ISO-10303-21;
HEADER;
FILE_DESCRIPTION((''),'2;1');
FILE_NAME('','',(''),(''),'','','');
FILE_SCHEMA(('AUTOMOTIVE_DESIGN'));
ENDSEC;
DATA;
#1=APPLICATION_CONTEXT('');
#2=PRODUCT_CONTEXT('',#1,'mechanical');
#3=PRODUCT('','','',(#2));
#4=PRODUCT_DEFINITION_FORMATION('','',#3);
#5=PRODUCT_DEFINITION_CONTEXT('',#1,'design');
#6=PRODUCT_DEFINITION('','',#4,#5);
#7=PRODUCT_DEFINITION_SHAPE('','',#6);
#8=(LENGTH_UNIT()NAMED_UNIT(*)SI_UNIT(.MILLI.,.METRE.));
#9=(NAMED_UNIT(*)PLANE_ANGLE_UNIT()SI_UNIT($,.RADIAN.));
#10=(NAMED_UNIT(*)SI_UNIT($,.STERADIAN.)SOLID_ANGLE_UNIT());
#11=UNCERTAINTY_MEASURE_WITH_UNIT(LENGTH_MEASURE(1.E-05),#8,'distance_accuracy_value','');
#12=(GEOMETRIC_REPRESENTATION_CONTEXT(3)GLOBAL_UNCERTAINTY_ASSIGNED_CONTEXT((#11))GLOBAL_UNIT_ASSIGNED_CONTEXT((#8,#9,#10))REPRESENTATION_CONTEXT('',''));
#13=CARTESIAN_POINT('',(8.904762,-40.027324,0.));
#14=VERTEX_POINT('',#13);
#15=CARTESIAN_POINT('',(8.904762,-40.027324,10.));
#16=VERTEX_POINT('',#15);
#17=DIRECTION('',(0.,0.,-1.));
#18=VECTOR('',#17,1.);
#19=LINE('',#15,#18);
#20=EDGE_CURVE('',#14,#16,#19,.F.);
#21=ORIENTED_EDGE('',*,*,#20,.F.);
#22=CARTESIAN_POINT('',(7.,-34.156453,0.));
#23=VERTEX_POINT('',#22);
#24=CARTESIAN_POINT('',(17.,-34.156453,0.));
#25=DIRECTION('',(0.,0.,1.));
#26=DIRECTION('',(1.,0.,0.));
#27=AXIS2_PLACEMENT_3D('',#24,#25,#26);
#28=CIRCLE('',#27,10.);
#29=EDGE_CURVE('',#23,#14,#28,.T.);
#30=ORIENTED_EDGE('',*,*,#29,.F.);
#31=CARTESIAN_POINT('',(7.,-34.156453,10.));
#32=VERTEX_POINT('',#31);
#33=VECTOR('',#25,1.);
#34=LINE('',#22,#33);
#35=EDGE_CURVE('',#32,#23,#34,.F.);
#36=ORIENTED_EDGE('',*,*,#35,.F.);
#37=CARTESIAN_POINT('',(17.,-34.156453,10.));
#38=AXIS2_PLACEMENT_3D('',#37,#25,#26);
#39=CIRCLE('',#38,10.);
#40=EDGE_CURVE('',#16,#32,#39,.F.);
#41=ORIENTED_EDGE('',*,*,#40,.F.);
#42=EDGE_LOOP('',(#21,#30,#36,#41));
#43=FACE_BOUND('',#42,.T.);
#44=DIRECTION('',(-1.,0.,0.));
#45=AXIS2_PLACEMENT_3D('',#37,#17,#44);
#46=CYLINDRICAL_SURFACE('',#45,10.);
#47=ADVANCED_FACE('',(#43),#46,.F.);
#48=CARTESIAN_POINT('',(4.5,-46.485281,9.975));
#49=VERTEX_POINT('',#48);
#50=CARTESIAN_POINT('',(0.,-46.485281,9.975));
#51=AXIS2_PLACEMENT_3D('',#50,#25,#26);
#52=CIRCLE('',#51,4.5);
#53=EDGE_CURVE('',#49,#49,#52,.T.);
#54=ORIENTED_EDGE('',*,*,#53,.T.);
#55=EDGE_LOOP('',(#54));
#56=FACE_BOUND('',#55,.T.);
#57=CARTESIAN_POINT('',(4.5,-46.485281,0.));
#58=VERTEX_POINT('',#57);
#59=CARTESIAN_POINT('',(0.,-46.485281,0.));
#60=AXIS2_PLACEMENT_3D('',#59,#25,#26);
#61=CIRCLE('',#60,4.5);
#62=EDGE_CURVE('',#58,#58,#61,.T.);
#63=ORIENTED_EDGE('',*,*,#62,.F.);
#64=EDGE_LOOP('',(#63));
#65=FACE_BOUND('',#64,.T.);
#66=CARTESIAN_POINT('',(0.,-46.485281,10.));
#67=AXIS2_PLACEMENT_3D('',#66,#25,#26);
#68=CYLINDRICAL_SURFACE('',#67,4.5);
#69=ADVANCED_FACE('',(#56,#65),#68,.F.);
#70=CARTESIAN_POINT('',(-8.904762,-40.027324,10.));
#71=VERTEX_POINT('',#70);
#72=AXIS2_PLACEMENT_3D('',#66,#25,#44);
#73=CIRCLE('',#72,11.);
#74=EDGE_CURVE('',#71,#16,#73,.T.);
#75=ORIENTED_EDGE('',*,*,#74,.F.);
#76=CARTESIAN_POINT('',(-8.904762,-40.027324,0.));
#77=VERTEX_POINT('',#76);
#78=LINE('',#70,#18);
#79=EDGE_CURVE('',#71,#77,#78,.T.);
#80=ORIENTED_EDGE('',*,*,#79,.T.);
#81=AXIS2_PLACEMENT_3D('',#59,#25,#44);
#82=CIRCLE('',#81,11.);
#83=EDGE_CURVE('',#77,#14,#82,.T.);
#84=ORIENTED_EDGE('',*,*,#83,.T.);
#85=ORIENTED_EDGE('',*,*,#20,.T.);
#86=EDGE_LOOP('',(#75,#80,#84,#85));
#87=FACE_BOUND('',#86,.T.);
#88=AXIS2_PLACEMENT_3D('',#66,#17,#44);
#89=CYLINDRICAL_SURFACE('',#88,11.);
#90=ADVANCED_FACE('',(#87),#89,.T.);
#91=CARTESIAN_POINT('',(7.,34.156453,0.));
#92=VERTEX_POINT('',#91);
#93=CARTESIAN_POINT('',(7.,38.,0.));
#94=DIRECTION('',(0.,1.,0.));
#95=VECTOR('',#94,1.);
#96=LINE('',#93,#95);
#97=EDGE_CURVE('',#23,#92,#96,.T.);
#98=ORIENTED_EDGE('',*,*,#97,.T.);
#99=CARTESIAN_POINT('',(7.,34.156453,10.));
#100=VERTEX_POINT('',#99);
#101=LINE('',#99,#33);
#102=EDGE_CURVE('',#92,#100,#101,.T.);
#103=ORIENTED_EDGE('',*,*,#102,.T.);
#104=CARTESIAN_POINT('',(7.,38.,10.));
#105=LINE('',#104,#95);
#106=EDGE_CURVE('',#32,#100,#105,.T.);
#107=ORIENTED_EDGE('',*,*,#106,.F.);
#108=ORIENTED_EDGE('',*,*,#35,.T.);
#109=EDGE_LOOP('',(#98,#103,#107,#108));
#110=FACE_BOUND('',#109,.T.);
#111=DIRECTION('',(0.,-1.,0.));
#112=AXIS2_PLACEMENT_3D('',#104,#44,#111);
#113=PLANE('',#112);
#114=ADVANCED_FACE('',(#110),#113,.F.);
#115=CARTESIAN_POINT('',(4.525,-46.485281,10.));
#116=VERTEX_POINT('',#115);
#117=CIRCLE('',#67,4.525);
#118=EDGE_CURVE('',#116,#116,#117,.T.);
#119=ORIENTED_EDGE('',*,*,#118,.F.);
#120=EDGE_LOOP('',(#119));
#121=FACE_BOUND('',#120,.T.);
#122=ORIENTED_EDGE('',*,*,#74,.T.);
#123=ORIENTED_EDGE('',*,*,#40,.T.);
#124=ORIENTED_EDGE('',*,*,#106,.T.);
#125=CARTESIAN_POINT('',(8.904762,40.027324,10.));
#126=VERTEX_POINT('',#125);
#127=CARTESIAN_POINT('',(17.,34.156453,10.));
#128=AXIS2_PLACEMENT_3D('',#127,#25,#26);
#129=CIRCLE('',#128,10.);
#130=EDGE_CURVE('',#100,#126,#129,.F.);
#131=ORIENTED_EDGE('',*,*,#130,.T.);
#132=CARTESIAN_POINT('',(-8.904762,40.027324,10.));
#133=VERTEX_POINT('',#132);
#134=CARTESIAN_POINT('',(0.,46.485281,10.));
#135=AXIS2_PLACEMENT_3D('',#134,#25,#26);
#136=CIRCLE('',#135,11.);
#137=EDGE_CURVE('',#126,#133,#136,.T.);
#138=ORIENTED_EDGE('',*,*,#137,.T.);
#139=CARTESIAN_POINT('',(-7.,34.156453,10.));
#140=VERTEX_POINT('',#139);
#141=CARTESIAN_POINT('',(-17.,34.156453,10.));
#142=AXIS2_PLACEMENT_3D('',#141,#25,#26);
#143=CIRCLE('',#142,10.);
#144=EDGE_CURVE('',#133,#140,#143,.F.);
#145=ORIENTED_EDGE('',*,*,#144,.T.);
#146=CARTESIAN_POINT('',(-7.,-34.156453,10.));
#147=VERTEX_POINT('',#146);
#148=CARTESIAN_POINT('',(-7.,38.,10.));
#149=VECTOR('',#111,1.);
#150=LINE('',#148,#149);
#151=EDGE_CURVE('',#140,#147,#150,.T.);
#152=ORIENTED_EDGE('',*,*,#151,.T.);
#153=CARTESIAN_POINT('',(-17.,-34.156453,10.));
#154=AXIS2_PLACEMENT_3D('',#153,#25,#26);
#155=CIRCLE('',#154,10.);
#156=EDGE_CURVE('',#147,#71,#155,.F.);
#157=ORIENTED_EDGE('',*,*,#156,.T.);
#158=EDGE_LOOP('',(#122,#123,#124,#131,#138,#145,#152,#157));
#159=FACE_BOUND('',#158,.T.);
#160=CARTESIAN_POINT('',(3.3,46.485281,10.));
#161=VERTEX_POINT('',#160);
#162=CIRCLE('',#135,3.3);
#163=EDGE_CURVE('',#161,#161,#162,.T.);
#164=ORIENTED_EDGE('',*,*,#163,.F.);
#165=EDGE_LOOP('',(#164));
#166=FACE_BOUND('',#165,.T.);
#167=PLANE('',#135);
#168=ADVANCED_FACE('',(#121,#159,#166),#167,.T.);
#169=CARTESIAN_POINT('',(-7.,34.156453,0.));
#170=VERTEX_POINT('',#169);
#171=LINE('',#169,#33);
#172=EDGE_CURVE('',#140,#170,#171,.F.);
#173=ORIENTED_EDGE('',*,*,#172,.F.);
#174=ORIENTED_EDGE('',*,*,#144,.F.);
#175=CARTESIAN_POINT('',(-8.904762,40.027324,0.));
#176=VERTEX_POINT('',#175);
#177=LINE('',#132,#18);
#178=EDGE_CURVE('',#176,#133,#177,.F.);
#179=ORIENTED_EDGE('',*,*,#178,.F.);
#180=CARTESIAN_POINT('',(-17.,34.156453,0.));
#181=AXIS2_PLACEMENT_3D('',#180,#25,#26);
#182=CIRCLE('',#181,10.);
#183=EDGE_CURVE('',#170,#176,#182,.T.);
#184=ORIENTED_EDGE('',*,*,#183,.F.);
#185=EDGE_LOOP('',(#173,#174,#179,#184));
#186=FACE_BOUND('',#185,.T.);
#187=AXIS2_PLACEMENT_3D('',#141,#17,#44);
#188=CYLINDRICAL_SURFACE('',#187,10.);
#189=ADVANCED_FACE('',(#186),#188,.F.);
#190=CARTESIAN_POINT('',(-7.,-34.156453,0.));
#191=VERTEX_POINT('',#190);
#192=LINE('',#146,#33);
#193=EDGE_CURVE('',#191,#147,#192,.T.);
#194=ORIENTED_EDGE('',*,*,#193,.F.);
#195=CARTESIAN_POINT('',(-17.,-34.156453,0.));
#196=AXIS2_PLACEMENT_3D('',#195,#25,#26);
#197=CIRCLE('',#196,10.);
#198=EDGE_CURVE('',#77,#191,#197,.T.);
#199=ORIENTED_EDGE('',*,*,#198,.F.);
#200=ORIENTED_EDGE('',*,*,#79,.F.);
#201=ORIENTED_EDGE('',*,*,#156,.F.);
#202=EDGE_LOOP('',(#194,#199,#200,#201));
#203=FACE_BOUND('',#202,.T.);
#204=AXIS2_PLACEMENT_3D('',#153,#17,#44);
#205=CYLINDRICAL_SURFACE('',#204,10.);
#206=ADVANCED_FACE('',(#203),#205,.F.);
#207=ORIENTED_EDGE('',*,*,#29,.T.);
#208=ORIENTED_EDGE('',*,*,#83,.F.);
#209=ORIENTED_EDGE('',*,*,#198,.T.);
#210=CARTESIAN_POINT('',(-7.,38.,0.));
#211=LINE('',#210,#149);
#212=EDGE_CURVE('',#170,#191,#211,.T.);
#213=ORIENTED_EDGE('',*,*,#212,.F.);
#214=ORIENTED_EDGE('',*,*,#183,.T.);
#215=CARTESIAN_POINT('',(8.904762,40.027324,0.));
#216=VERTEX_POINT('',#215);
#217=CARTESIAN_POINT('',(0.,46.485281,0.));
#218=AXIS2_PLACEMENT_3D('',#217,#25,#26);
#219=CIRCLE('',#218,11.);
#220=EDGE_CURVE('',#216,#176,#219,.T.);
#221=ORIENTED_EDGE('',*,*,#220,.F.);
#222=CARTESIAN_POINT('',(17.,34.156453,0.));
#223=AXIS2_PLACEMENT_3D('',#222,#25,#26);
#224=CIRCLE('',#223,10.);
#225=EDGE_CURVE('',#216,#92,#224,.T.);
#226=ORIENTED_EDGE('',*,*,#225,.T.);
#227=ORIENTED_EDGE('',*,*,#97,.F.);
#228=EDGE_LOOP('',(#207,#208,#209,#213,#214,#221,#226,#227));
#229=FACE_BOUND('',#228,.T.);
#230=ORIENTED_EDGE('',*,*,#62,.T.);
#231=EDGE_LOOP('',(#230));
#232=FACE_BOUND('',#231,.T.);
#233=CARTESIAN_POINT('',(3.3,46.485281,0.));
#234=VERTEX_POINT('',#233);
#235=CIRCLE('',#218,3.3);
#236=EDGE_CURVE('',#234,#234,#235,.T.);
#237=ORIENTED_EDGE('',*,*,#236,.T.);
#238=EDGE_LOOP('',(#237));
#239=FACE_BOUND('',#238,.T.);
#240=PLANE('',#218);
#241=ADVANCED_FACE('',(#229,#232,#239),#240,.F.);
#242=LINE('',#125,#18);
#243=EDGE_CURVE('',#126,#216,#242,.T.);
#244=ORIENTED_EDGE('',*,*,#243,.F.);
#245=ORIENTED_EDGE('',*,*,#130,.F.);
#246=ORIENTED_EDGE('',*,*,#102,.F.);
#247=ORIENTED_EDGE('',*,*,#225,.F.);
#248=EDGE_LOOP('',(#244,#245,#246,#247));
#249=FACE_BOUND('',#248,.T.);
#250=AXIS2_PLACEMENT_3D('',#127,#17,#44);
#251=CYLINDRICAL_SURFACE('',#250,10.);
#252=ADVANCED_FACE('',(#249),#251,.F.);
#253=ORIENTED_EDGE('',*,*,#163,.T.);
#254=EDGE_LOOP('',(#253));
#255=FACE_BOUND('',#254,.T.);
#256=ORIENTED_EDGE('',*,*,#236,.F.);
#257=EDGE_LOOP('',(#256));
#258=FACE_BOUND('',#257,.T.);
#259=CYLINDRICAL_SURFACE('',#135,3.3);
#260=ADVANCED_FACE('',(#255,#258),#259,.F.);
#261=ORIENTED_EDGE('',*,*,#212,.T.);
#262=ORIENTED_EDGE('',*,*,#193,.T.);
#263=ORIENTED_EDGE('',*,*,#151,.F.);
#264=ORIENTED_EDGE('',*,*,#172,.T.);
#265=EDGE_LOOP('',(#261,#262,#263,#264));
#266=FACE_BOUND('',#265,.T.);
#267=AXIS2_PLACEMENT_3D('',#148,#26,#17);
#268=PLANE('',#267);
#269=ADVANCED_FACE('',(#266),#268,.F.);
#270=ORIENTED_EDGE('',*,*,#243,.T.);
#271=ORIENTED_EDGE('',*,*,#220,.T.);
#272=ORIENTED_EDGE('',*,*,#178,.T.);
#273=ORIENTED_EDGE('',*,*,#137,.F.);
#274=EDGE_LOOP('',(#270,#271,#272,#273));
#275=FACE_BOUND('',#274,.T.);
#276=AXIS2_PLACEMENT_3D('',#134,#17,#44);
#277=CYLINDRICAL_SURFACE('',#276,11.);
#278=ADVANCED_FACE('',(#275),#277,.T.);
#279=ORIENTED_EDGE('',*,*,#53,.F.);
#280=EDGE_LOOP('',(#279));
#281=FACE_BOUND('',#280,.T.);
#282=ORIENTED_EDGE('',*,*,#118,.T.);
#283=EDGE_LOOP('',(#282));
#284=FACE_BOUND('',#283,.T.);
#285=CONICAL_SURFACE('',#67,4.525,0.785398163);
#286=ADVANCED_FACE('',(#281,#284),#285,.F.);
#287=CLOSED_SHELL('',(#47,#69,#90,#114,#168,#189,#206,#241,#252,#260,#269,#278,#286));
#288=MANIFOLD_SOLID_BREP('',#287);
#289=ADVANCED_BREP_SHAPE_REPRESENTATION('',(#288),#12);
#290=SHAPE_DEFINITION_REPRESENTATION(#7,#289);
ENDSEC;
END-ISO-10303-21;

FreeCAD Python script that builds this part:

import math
import FreeCAD as App
import Part
import Sketcher

V = App.Vector
Q = App.Units.Quantity


def edges_at(feature, points):
    """Names of the edges that pass closest to the given points."""
    edges = feature.Shape.Edges
    near = lambda p: min(range(len(edges)), key=lambda i: edges[i].distToShape(Part.Vertex(*p))[0])
    return sorted({f"Edge{near(p) + 1}" for p in points})

doc = App.newDocument("Part")
body = doc.addObject("PartDesign::Body", "Body")

# Sketch on XY plane
sketch1 = body.newObject("Sketcher::SketchObject", "Sketch")
sketch1.AttachmentSupport = (doc.getObject("XY_Plane"), [""])
sketch1.MapMode = "FlatFace"
sketch1.addGeometry(Part.LineSegment(V(-7, 38, 0), V(-7, -38, 0)), False)
sketch1.addGeometry(Part.ArcOfCircle(Part.Circle(V(0, -46, 0), V(0, 0, 1), 11), math.radians(130), math.radians(410)), False)
sketch1.addGeometry(Part.LineSegment(V(7, -38, 0), V(7, 38, 0)), False)
sketch1.addGeometry(Part.ArcOfCircle(Part.Circle(V(0, 46, 0), V(0, 0, 1), 11), math.radians(-50), math.radians(230)), False)
sketch1.addConstraint(Sketcher.Constraint("Coincident", 0, 2, 1, 1))
sketch1.addConstraint(Sketcher.Constraint("Coincident", 1, 2, 2, 1))
sketch1.addConstraint(Sketcher.Constraint("Coincident", 2, 2, 3, 1))
sketch1.addConstraint(Sketcher.Constraint("Coincident", 3, 2, 0, 1))
sketch1.addConstraint(Sketcher.Constraint("Vertical", 0))
sketch1.addConstraint(Sketcher.Constraint("Vertical", 2))
sketch1.addConstraint(Sketcher.Constraint("Equal", 1, 3))
sketch1.addConstraint(Sketcher.Constraint("Symmetric", 1, 3, 3, 3, -1, 1))
sketch1.addConstraint(Sketcher.Constraint("Symmetric", 0, 2, 1, 2, -2))
sketch1.addConstraint(Sketcher.Constraint("Radius", 1, Q("11 mm")))
sketch1.addConstraint(Sketcher.Constraint("DistanceY", 0, 2, 0, 1, Q("76 mm")))
sketch1.addConstraint(Sketcher.Constraint("DistanceX", 0, 2, -1, 1, Q("7 mm")))
pad1 = body.newObject("PartDesign::Pad", "Pad")
pad1.Profile = sketch1
pad1.Length = 10
doc.recompute()

fillet = body.newObject("PartDesign::Fillet", "Fillet")
fillet.Base = (pad1, edges_at(pad1, [
    (7, 38, 5),
    (7, -38, 5),
    (-7, -38, 5),
    (-7, 38, 5),
]))
fillet.Radius = 10

# Sketch on XY plane
sketch2 = body.newObject("Sketcher::SketchObject", "Sketch001")
sketch2.AttachmentSupport = (doc.getObject("XY_Plane"), [""])
sketch2.MapMode = "FlatFace"
sketch2.AttachmentOffset = App.Placement(V(0, 0, 10), App.Rotation())
sketch2.addGeometry(Part.Circle(V(0, -46.5, 0), V(0, 0, 1), 4.5), False)
sketch2.addConstraint(Sketcher.Constraint("PointOnObject", 0, 3, -2))
sketch2.addConstraint(Sketcher.Constraint("Diameter", 0, Q("9 mm")))
sketch2.addConstraint(Sketcher.Constraint("DistanceY", 0, 3, -1, 1, Q("46.485281 mm")))
doc.recompute()
hole = body.newObject("PartDesign::Hole", "Hole")
hole.Profile = sketch2
hole.ThreadType = "None"
hole.Diameter = 9
hole.DepthType = "ThroughAll"
hole.HoleCutType = "Countersink"
hole.HoleCutDiameter = 9.05
hole.HoleCutCountersinkAngle = 90

# Sketch on XY plane
sketch3 = body.newObject("Sketcher::SketchObject", "Sketch002")
sketch3.AttachmentSupport = (doc.getObject("XY_Plane"), [""])
sketch3.MapMode = "FlatFace"
sketch3.AttachmentOffset = App.Placement(V(0, 0, 10), App.Rotation())
sketch3.addGeometry(Part.Circle(V(0, 46.5, 0), V(0, 0, 1), 3.3), False)
sketch3.addConstraint(Sketcher.Constraint("PointOnObject", 0, 3, -2))
sketch3.addConstraint(Sketcher.Constraint("Diameter", 0, Q("6.6 mm")))
sketch3.addConstraint(Sketcher.Constraint("DistanceY", -1, 1, 0, 3, Q("46.485281 mm")))
doc.recompute()
hole2 = body.newObject("PartDesign::Hole", "Hole001")
hole2.Profile = sketch3
hole2.ThreadType = "None"
hole2.Diameter = 6.6
hole2.DepthType = "ThroughAll"

doc.recompute()
